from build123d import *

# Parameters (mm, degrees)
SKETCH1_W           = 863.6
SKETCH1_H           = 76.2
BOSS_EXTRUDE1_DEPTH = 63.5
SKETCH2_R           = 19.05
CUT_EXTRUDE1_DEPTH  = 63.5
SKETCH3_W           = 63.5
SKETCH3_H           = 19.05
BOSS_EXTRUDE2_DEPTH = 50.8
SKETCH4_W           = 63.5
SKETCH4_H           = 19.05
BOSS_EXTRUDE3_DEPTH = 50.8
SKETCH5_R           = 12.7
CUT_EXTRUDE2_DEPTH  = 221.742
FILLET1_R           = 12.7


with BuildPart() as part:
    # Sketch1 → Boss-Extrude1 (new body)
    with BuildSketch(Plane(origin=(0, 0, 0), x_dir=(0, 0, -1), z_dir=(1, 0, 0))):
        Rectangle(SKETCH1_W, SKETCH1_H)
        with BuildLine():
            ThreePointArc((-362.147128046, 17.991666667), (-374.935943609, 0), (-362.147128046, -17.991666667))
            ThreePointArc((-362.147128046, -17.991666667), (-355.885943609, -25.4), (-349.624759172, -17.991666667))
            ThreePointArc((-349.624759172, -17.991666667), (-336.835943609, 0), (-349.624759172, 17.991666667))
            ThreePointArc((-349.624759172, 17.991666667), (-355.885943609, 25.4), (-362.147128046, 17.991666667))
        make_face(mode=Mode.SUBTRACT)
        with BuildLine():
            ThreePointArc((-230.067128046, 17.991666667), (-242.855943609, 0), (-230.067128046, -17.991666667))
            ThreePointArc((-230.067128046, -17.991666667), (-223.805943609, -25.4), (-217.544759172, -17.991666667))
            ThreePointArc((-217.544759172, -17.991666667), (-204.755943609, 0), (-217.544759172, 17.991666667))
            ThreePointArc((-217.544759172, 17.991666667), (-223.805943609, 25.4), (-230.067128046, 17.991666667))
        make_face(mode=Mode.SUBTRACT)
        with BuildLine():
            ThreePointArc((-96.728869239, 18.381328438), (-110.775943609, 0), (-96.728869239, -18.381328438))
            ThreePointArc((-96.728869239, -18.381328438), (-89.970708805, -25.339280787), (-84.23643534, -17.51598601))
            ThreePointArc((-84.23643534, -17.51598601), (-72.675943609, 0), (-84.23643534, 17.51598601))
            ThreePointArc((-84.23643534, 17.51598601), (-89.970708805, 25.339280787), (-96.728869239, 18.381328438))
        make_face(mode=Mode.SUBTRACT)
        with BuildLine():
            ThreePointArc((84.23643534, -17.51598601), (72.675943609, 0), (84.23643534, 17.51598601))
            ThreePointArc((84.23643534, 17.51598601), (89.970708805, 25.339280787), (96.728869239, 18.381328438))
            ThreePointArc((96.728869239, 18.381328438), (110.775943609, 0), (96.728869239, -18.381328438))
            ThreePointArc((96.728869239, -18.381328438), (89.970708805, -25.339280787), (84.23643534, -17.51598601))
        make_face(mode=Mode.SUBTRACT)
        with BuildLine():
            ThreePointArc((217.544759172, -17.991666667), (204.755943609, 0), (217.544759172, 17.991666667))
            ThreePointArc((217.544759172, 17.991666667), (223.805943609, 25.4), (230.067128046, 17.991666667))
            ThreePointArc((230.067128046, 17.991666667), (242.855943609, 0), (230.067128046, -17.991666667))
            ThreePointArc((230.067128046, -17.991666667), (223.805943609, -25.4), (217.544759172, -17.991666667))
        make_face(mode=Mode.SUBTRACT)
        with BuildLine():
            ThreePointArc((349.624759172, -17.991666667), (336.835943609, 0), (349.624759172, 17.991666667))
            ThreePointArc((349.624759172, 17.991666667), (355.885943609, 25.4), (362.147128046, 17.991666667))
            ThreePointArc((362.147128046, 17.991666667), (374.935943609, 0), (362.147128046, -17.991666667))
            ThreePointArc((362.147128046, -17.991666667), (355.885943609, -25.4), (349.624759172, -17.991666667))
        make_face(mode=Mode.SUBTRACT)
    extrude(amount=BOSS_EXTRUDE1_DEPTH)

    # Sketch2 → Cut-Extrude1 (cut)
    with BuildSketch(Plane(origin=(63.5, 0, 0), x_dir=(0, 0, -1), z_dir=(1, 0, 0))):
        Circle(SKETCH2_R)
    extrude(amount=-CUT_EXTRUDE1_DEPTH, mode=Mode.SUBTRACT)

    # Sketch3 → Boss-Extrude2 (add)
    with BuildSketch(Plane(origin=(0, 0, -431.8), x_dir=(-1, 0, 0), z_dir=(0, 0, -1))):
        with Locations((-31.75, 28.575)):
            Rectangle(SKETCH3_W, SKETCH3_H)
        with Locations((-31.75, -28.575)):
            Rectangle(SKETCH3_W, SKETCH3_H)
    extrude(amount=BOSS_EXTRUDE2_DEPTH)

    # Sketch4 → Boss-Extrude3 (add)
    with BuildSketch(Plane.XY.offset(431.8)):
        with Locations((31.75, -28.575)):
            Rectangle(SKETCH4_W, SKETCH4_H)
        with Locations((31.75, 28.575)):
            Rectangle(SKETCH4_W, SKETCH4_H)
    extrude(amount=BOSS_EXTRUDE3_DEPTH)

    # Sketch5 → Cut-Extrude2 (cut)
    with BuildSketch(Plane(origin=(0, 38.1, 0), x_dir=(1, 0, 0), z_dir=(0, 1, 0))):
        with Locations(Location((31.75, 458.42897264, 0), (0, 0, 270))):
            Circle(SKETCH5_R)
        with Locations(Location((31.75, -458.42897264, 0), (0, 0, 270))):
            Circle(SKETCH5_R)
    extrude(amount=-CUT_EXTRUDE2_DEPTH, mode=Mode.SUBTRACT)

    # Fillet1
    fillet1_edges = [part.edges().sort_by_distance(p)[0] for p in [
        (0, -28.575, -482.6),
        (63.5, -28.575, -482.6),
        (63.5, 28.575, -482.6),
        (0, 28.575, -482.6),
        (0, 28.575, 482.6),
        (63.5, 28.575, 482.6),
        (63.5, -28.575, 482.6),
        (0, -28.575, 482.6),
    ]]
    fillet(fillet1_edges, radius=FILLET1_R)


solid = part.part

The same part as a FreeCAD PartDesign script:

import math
import FreeCAD as App
import Part
import Sketcher
Q = App.Units.Quantity


def edges_at(feature, points):
    """Names of the edges that pass closest to the given points."""
    edges = feature.Shape.Edges
    near = lambda p: min(range(len(edges)), key=lambda i: edges[i].distToShape(Part.Vertex(*p))[0])
    return sorted({f"Edge{near(p) + 1}" for p in points})


def add_polygon(sketch, points):
    """Adds a closed chain of lines whose ends are joined by coincident constraints."""
    first, n = sketch.GeometryCount, len(points)
    for a, b in zip(points, points[1:] + points[:1]):
        sketch.addGeometry(Part.LineSegment(App.Vector(*a, 0), App.Vector(*b, 0)), False)
    for i in range(n):
        sketch.addConstraint(Sketcher.Constraint("Coincident", first + i, 2, first + (i + 1) % n, 1))

doc = App.newDocument("Part")
body = doc.addObject("PartDesign::Body", "Body")

# Sketch on YZ plane
sketch1 = body.newObject("Sketcher::SketchObject", "Sketch")
sketch1.AttachmentSupport = (doc.getObject("YZ_Plane"), [""])
sketch1.MapMode = "FlatFace"
add_polygon(sketch1, [(38, 432), (-38, 432), (-38, -432), (38, -432)])  # lines 0-3
sketch1.addGeometry(Part.ArcOfCircle(Part.Circle(App.Vector(0, 356, 0), App.Vector(0, 0, 1), 19), math.radians(19), math.radians(161)), False)  # 4
sketch1.addGeometry(Part.ArcOfCircle(Part.Circle(App.Vector(19, 356, 0), App.Vector(0, 0, 1), 6), math.radians(-100), math.radians(100)), False)  # 5
sketch1.addGeometry(Part.ArcOfCircle(Part.Circle(App.Vector(0, 356, 0), App.Vector(0, 0, 1), 19), math.radians(-161), math.radians(-19)), False)  # 6
sketch1.addGeometry(Part.ArcOfCircle(Part.Circle(App.Vector(-19, 356, 0), App.Vector(0, 0, 1), 6), math.radians(80), math.radians(280)), False)  # 7
sketch1.addGeometry(Part.ArcOfCircle(Part.Circle(App.Vector(0, 224, 0), App.Vector(0, 0, 1), 19), math.radians(19), math.radians(161)), False)  # 8
sketch1.addGeometry(Part.ArcOfCircle(Part.Circle(App.Vector(19, 224, 0), App.Vector(0, 0, 1), 6), math.radians(-100), math.radians(100)), False)  # 9
sketch1.addGeometry(Part.ArcOfCircle(Part.Circle(App.Vector(0, 224, 0), App.Vector(0, 0, 1), 19), math.radians(-161), math.radians(-19)), False)  # 10
sketch1.addGeometry(Part.ArcOfCircle(Part.Circle(App.Vector(-19, 224, 0), App.Vector(0, 0, 1), 6), math.radians(80), math.radians(280)), False)  # 11
sketch1.addGeometry(Part.ArcOfCircle(Part.Circle(App.Vector(0, 92, 0), App.Vector(0, 0, 1), 19), math.radians(15), math.radians(165)), False)  # 12
sketch1.addGeometry(Part.ArcOfCircle(Part.Circle(App.Vector(19, 90, 0), App.Vector(0, 0, 1), 6), math.radians(-104), math.radians(96)), False)  # 13
sketch1.addGeometry(Part.ArcOfCircle(Part.Circle(App.Vector(0, 92, 0), App.Vector(0, 0, 1), 19), math.radians(-157), math.radians(-23)), False)  # 14
sketch1.addGeometry(Part.ArcOfCircle(Part.Circle(App.Vector(-19, 90, 0), App.Vector(0, 0, 1), 6), math.radians(84), math.radians(284)), False)  # 15
sketch1.addGeometry(Part.ArcOfCircle(Part.Circle(App.Vector(-19, -90, 0), App.Vector(0, 0, 1), 6), math.radians(76), math.radians(276)), False)  # 16
sketch1.addGeometry(Part.ArcOfCircle(Part.Circle(App.Vector(0, -92, 0), App.Vector(0, 0, 1), 19), math.radians(23), math.radians(157)), False)  # 17
sketch1.addGeometry(Part.ArcOfCircle(Part.Circle(App.Vector(19, -90, 0), App.Vector(0, 0, 1), 6), math.radians(-96), math.radians(104)), False)  # 18
sketch1.addGeometry(Part.ArcOfCircle(Part.Circle(App.Vector(0, -92, 0), App.Vector(0, 0, 1), 19), math.radians(-165), math.radians(-15)), False)  # 19
sketch1.addGeometry(Part.ArcOfCircle(Part.Circle(App.Vector(-19, -224, 0), App.Vector(0, 0, 1), 6), math.radians(80), math.radians(280)), False)  # 20
sketch1.addGeometry(Part.ArcOfCircle(Part.Circle(App.Vector(0, -224, 0), App.Vector(0, 0, 1), 19), math.radians(19), math.radians(161)), False)  # 21
sketch1.addGeometry(Part.ArcOfCircle(Part.Circle(App.Vector(19, -224, 0), App.Vector(0, 0, 1), 6), math.radians(-100), math.radians(100)), False)  # 22
sketch1.addGeometry(Part.ArcOfCircle(Part.Circle(App.Vector(0, -224, 0), App.Vector(0, 0, 1), 19), math.radians(-161), math.radians(-19)), False)  # 23
sketch1.addGeometry(Part.ArcOfCircle(Part.Circle(App.Vector(-19, -356, 0), App.Vector(0, 0, 1), 6), math.radians(80), math.radians(280)), False)  # 24
sketch1.addGeometry(Part.ArcOfCircle(Part.Circle(App.Vector(0, -356, 0), App.Vector(0, 0, 1), 19), math.radians(19), math.radians(161)), False)  # 25
sketch1.addGeometry(Part.ArcOfCircle(Part.Circle(App.Vector(19, -356, 0), App.Vector(0, 0, 1), 6), math.radians(-100), math.radians(100)), False)  # 26
sketch1.addGeometry(Part.ArcOfCircle(Part.Circle(App.Vector(0, -356, 0), App.Vector(0, 0, 1), 19), math.radians(-161), math.radians(-19)), False)  # 27
sketch1.addConstraint([
    Sketcher.Constraint("Coincident", 4, 1, 5, 2),
    Sketcher.Constraint("Coincident", 5, 1, 6, 2),
    Sketcher.Constraint("Coincident", 6, 1, 7, 2),
    Sketcher.Constraint("Coincident", 7, 1, 4, 2),
    Sketcher.Constraint("Coincident", 8, 1, 9, 2),
    Sketcher.Constraint("Coincident", 9, 1, 10, 2),
    Sketcher.Constraint("Coincident", 10, 1, 11, 2),
    Sketcher.Constraint("Coincident", 11, 1, 8, 2),
    Sketcher.Constraint("Coincident", 12, 1, 13, 2),
    Sketcher.Constraint("Coincident", 13, 1, 14, 2),
    Sketcher.Constraint("Coincident", 14, 1, 15, 2),
    Sketcher.Constraint("Coincident", 15, 1, 12, 2),
    Sketcher.Constraint("Coincident", 16, 1, 17, 2),
    Sketcher.Constraint("Coincident", 17, 1, 18, 2),
    Sketcher.Constraint("Coincident", 18, 1, 19, 2),
    Sketcher.Constraint("Coincident", 19, 1, 16, 2),
    Sketcher.Constraint("Coincident", 20, 1, 21, 2),
    Sketcher.Constraint("Coincident", 21, 1, 22, 2),
    Sketcher.Constraint("Coincident", 22, 1, 23, 2),
    Sketcher.Constraint("Coincident", 23, 1, 20, 2),
    Sketcher.Constraint("Coincident", 24, 1, 25, 2),
    Sketcher.Constraint("Coincident", 25, 1, 26, 2),
    Sketcher.Constraint("Coincident", 26, 1, 27, 2),
    Sketcher.Constraint("Coincident", 27, 1, 24, 2),
    Sketcher.Constraint("Horizontal", 0),
    Sketcher.Constraint("Vertical", 1),
    Sketcher.Constraint("Horizontal", 2),
    Sketcher.Constraint("Vertical", 3),
    Sketcher.Constraint("Coincident", 6, 3, 4, 3),
    Sketcher.Constraint("Coincident", 10, 3, 8, 3),
    Sketcher.Constraint("Coincident", 14, 3, 12, 3),
    Sketcher.Constraint("Coincident", 19, 3, 17, 3),
    Sketcher.Constraint("Coincident", 23, 3, 21, 3),
    Sketcher.Constraint("Coincident", 27, 3, 25, 3),
    Sketcher.Constraint("Equal", 4, 6),
    Sketcher.Constraint("Equal", 5, 7),
    Sketcher.Constraint("Equal", 6, 8),
    Sketcher.Constraint("Equal", 7, 9),
    Sketcher.Constraint("Equal", 8, 10),
    Sketcher.Constraint("Equal", 9, 11),
    Sketcher.Constraint("Equal", 10, 12),
    Sketcher.Constraint("Equal", 11, 13),
    Sketcher.Constraint("Equal", 12, 14),
    Sketcher.Constraint("Equal", 13, 15),
    Sketcher.Constraint("Equal", 15, 16),
    Sketcher.Constraint("Equal", 14, 17),
    Sketcher.Constraint("Equal", 16, 18),
    Sketcher.Constraint("Equal", 17, 19),
    Sketcher.Constraint("Equal", 18, 20),
    Sketcher.Constraint("Equal", 19, 21),
    Sketcher.Constraint("Equal", 20, 22),
    Sketcher.Constraint("Equal", 21, 23),
    Sketcher.Constraint("Equal", 22, 24),
    Sketcher.Constraint("Equal", 23, 25),
    Sketcher.Constraint("Equal", 24, 26),
    Sketcher.Constraint("Equal", 25, 27),
    Sketcher.Constraint("Symmetric", 13, 3, 16, 3, -1, 1),
    Sketcher.Constraint("Symmetric", 12, 3, 17, 3, -1, 1),
    Sketcher.Constraint("Symmetric", 15, 3, 18, 3, -1, 1),
    Sketcher.Constraint("Symmetric", 9, 3, 20, 3, -1, 1),
    Sketcher.Constraint("Symmetric", 8, 3, 21, 3, -1, 1),
    Sketcher.Constraint("Symmetric", 11, 3, 22, 3, -1, 1),
    Sketcher.Constraint("Symmetric", 5, 3, 24, 3, -1, 1),
    Sketcher.Constraint("Symmetric", 4, 3, 25, 3, -1, 1),
    Sketcher.Constraint("Symmetric", 7, 3, 26, 3, -1, 1),
    Sketcher.Constraint("Symmetric", 0, 2, 2, 2, -1, 1),
    Sketcher.Constraint("Symmetric", 5, 3, 7, 3, -2),
    Sketcher.Constraint("Symmetric", 9, 3, 11, 3, -2),
    Sketcher.Constraint("Symmetric", 13, 3, 15, 3, -2),
    Sketcher.Constraint("PointOnObject", 4, 3, -2),
    Sketcher.Constraint("PointOnObject", 8, 3, -2),
    Sketcher.Constraint("PointOnObject", 12, 3, -2),
    Sketcher.Constraint("Horizontal", 4, 3, 5, 3),
    Sketcher.Constraint("Horizontal", 8, 3, 9, 3),
    Sketcher.Constraint("Vertical", 5, 3, 9, 3),
    Sketcher.Constraint("DistanceX", 0, 2, 0, 1, Q("3 in")),
    Sketcher.Constraint("DistanceY", 1, 2, 1, 1, Q("34 in")),
    Sketcher.Constraint("Radius", 4, Q("0.75 in")),
    Sketcher.Constraint("Radius", 5, Q("0.25 in")),
    Sketcher.Constraint("DistanceX", 7, 3, 5, 3, Q("1.5 in")),
    Sketcher.Constraint("DistanceY", 8, 3, 4, 3, Q("5.2 in")),
    Sketcher.Constraint("DistanceY", 12, 3, 8, 3, Q("5.2 in")),
    Sketcher.Constraint("DistanceX", -1, 1, 13, 3, Q("19.004461 mm")),
    Sketcher.Constraint("DistanceY", -1, 1, 4, 1, Q("362.147128 mm")),
    Sketcher.Constraint("DistanceX", -1, 1, 12, 1, Q("18.381328 mm")),
])
pad1 = body.newObject("PartDesign::Pad", "Pad")
pad1.Profile = sketch1
pad1.Length = Q("2.5 in")

# Sketch on YZ plane
sketch2 = body.newObject("Sketcher::SketchObject", "Sketch001")
sketch2.AttachmentSupport = (doc.getObject("YZ_Plane"), [""])
sketch2.MapMode = "FlatFace"
sketch2.AttachmentOffset = App.Placement(App.Vector(0, 0, 2.5 * 25.4), App.Rotation())
sketch2.addGeometry(Part.Circle(App.Vector(0, 0, 0), App.Vector(0, 0, 1), 19), False)
sketch2.addConstraint([
    Sketcher.Constraint("Coincident", 0, 3, -1, 1),
    Sketcher.Constraint("Diameter", 0, Q("1.5 in")),
])
pocket1 = body.newObject("PartDesign::Pocket", "Pocket")
pocket1.Profile = sketch2
pocket1.Length = Q("2.5 in")

# Sketch on XY plane
sketch3 = body.newObject("Sketcher::SketchObject", "Sketch002")
sketch3.AttachmentSupport = (doc.getObject("XY_Plane"), [""])
sketch3.MapMode = "FlatFace"
sketch3.AttachmentOffset = App.Placement(App.Vector(0, 0, -17 * 25.4), App.Rotation())
add_polygon(sketch3, [(64, 38), (64, 19), (0, 19), (0, 38)])  # lines 0-3
add_polygon(sketch3, [(64, -19), (64, -38), (0, -38), (0, -19)])  # lines 4-7
sketch3.addConstraint([
    Sketcher.Constraint("Vertical", 0),
    Sketcher.Constraint("Horizontal", 1),
    Sketcher.Constraint("Vertical", 2),
    Sketcher.Constraint("Horizontal", 3),
    Sketcher.Constraint("Vertical", 4),
    Sketcher.Constraint("Horizontal", 5),
    Sketcher.Constraint("Vertical", 6),
    Sketcher.Constraint("Horizontal", 7),
    Sketcher.Constraint("Symmetric", 2, 2, 5, 2, -1, 1),
    Sketcher.Constraint("Symmetric", 1, 2, 6, 2, -1),
    Sketcher.Constraint("Vertical", 3, 2, 4, 2),
    Sketcher.Constraint("DistanceX", 1, 2, 1, 1, Q("2.5 in")),
    Sketcher.Constraint("DistanceY", 4, 2, 3, 2, Q("3 in")),
    Sketcher.Constraint("DistanceY", 0, 2, 0, 1, Q("0.75 in")),
])
pad2 = body.newObject("PartDesign::Pad", "Pad001")
pad2.Profile = sketch3
pad2.Length = Q("2 in")
pad2.Reversed = True

# Sketch on XY plane
sketch4 = body.newObject("Sketcher::SketchObject", "Sketch003")
sketch4.AttachmentSupport = (doc.getObject("XY_Plane"), [""])
sketch4.MapMode = "FlatFace"
sketch4.AttachmentOffset = App.Placement(App.Vector(0, 0, 17 * 25.4), App.Rotation())
add_polygon(sketch4, [(0, -19), (0, -38), (64, -38), (64, -19)])  # lines 0-3
add_polygon(sketch4, [(0, 38), (0, 19), (64, 19), (64, 38)])  # lines 4-7
sketch4.addConstraint([
    Sketcher.Constraint("Vertical", 0),
    Sketcher.Constraint("Horizontal", 1),
    Sketcher.Constraint("Vertical", 2),
    Sketcher.Constraint("Horizontal", 3),
    Sketcher.Constraint("Vertical", 4),
    Sketcher.Constraint("Horizontal", 5),
    Sketcher.Constraint("Vertical", 6),
    Sketcher.Constraint("Horizontal", 7),
    Sketcher.Constraint("Symmetric", 3, 2, 4, 2, -1, 1),
    Sketcher.Constraint("Symmetric", 1, 2, 6, 2, -1),
    Sketcher.Constraint("PointOnObject", 0, 2, -2),
    Sketcher.Constraint("DistanceX", 1, 1, 1, 2, Q("2.5 in")),
    Sketcher.Constraint("DistanceY", 1, 2, 6, 2, Q("3 in")),
    Sketcher.Constraint("DistanceY", 0, 2, 0, 1, Q("0.75 in")),
])
pad3 = body.newObject("PartDesign::Pad", "Pad002")
pad3.Profile = sketch4
pad3.Length = Q("2 in")

# Sketch on XZ plane
sketch5 = body.newObject("Sketcher::SketchObject", "Sketch004")
sketch5.AttachmentSupport = (doc.getObject("XZ_Plane"), [""])
sketch5.MapMode = "FlatFace"
sketch5.AttachmentOffset = App.Placement(App.Vector(0, 0, -1.5 * 25.4), App.Rotation())
sketch5.addGeometry([
    Part.Circle(App.Vector(32, -458, 0), App.Vector(0, 0, 1), 13),
    Part.Circle(App.Vector(32, 458, 0), App.Vector(0, 0, 1), 13),
], False)
sketch5.addConstraint([
    Sketcher.Constraint("Equal", 0, 1),
    Sketcher.Constraint("Symmetric", 0, 3, 1, 3, -1),
    Sketcher.Constraint("Diameter", 0, Q("1 in")),
    Sketcher.Constraint("DistanceX", -1, 1, 0, 3, Q("1.25 in")),
    Sketcher.Constraint("DistanceY", 0, 3, -1, 1, Q("458.428973 mm")),
])
pocket2 = body.newObject("PartDesign::Pocket", "Pocket001")
pocket2.Profile = sketch5
pocket2.Length = Q("8.73 in")
pocket2.Reversed = True
doc.recompute()

fillet = body.newObject("PartDesign::Fillet", "Fillet")
fillet.Base = (pocket2, edges_at(pocket2, [
    (0, -28.575, -482.6),
    (63.5, -28.575, -482.6),
    (63.5, 28.575, -482.6),
    (0, 28.575, -482.6),
    (0, 28.575, 482.6),
    (63.5, 28.575, 482.6),
    (63.5, -28.575, 482.6),
    (0, -28.575, 482.6),
]))
fillet.Radius = Q("0.5 in")

doc.recompute()
